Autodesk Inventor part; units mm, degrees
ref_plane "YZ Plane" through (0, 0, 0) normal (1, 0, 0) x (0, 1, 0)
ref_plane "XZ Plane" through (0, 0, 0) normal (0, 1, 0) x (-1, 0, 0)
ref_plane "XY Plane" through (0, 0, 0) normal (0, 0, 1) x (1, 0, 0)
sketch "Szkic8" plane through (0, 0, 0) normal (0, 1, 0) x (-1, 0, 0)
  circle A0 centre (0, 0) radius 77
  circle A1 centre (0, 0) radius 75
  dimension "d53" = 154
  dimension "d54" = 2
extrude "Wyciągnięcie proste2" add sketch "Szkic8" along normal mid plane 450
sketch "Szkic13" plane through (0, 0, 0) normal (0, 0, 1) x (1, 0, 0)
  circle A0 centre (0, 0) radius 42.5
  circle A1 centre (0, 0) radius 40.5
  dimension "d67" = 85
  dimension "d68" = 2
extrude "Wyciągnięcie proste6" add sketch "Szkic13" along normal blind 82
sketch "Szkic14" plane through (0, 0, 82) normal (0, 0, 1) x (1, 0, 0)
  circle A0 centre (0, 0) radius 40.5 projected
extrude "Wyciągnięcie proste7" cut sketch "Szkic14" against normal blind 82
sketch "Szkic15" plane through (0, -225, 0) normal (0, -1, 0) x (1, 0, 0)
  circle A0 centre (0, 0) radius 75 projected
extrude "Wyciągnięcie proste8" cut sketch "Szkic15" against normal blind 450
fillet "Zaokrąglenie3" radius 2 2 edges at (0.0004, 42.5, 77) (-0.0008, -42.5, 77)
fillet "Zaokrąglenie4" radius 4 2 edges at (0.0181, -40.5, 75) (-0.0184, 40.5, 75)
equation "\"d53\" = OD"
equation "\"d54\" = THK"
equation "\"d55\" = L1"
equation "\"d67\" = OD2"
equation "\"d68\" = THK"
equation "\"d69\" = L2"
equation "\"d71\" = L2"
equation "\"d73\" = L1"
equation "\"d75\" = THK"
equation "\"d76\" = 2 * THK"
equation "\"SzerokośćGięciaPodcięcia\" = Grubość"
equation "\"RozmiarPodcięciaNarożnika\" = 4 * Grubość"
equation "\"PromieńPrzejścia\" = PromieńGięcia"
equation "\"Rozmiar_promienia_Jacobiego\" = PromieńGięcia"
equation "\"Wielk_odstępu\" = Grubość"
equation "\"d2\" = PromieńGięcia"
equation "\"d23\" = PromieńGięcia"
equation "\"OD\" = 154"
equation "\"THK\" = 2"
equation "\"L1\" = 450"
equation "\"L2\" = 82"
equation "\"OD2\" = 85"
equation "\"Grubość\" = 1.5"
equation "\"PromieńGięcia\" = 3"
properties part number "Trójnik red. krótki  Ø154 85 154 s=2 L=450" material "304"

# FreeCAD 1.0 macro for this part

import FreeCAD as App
import Part
import Sketcher


def edges_at(feature, points):
    """Names of the edges that pass closest to the given points."""
    edges = feature.Shape.Edges
    near = lambda p: min(range(len(edges)), key=lambda i: edges[i].distToShape(Part.Vertex(*p))[0])
    return sorted({f"Edge{near(p) + 1}" for p in points})

doc = App.newDocument("Part")
body = doc.addObject("PartDesign::Body", "Body")

sketch1 = doc.addObject("Sketcher::SketchObject", "Sketch")
body.addObject(sketch1)
sketch1.AttachmentSupport = (doc.XZ_Plane, [""])
sketch1.MapMode = "FlatFace"
sketch1.addGeometry([
    Part.Circle(App.Vector(0, 0, 0), App.Vector(0, 0, 1), 77),
    Part.Circle(App.Vector(0, 0, 0), App.Vector(0, 0, 1), 75),
], False)
sketch1.addConstraint([
    Sketcher.Constraint("Coincident", 0, 3, -1, 1),
    Sketcher.Constraint("Coincident", 1, 3, -1, 1),
    Sketcher.Constraint("Diameter", 0, 154.0),
    Sketcher.Constraint("Diameter", 1, 150.0),
])
pad1 = doc.addObject("PartDesign::Pad", "Pad")
body.addObject(pad1)
pad1.Profile = sketch1
pad1.Length = 450
pad1.Midplane = True

sketch2 = doc.addObject("Sketcher::SketchObject", "Sketch001")
body.addObject(sketch2)
sketch2.AttachmentSupport = (doc.XY_Plane, [""])
sketch2.MapMode = "FlatFace"
sketch2.addGeometry([
    Part.Circle(App.Vector(0, 0, 0), App.Vector(0, 0, 1), 42),
    Part.Circle(App.Vector(0, 0, 0), App.Vector(0, 0, 1), 40),
], False)
sketch2.addConstraint([
    Sketcher.Constraint("Coincident", 0, 3, -1, 1),
    Sketcher.Constraint("Coincident", 1, 3, -1, 1),
    Sketcher.Constraint("Diameter", 0, 85.0),
    Sketcher.Constraint("Diameter", 1, 81.0),
])
pad2 = doc.addObject("PartDesign::Pad", "Pad001")
body.addObject(pad2)
pad2.Profile = sketch2
pad2.Length = 82

sketch3 = doc.addObject("Sketcher::SketchObject", "Sketch002")
body.addObject(sketch3)
sketch3.AttachmentSupport = (doc.XY_Plane, [""])
sketch3.MapMode = "FlatFace"
sketch3.AttachmentOffset = App.Placement(App.Vector(0, 0, 82), App.Rotation())
sketch3.addGeometry(Part.Circle(App.Vector(0, 0, 0), App.Vector(0, 0, 1), 40), False)
sketch3.addConstraint([
    Sketcher.Constraint("Coincident", 0, 3, -1, 1),
    Sketcher.Constraint("Diameter", 0, 81.0),
])
pocket1 = doc.addObject("PartDesign::Pocket", "Pocket")
body.addObject(pocket1)
pocket1.Profile = sketch3
pocket1.Length = 82

sketch4 = doc.addObject("Sketcher::SketchObject", "Sketch003")
body.addObject(sketch4)
sketch4.AttachmentSupport = (doc.XZ_Plane, [""])
sketch4.MapMode = "FlatFace"
sketch4.AttachmentOffset = App.Placement(App.Vector(0, 0, 225), App.Rotation())
sketch4.addGeometry(Part.Circle(App.Vector(0, 0, 0), App.Vector(0, 0, 1), 75), False)
sketch4.addConstraint([
    Sketcher.Constraint("Coincident", 0, 3, -1, 1),
    Sketcher.Constraint("Diameter", 0, 150.0),
])
pocket2 = doc.addObject("PartDesign::Pocket", "Pocket001")
body.addObject(pocket2)
pocket2.Profile = sketch4
pocket2.Length = 450
doc.recompute()

fillet = doc.addObject("PartDesign::Fillet", "Fillet")
body.addObject(fillet)
fillet.Base = (pocket2, edges_at(pocket2, [(0, 42.5, 77), (-0.001, -42.5, 77)]))
fillet.Radius = 2
doc.recompute()

fillet2 = doc.addObject("PartDesign::Fillet", "Fillet001")
body.addObject(fillet2)
fillet2.Base = (fillet, edges_at(fillet, [(0.018, -40.5, 75), (-0.018, 40.5, 75)]))
fillet2.Radius = 4

doc.recompute()
